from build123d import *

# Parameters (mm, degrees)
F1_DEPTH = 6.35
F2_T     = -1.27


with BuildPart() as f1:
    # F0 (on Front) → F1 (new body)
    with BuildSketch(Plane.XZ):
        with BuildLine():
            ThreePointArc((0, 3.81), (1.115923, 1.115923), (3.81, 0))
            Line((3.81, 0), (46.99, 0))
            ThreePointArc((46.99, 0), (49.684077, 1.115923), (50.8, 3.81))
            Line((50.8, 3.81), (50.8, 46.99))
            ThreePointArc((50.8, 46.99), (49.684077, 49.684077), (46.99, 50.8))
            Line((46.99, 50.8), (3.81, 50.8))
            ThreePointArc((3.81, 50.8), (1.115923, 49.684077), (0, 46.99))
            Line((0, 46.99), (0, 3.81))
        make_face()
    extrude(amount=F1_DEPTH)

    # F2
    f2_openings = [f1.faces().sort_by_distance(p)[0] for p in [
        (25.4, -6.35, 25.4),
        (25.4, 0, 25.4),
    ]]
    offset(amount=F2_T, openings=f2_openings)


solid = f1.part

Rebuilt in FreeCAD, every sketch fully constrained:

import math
import FreeCAD as App
import Part
import Sketcher
Q = App.Units.Quantity


def faces_at(feature, points):
    """Names of the faces that lie closest to the given points."""
    faces = feature.Shape.Faces
    near = lambda p: min(range(len(faces)), key=lambda i: faces[i].distToShape(Part.Vertex(*p))[0])
    return sorted({f"Face{near(p) + 1}" for p in points})

doc = App.newDocument("Part")
body = doc.addObject("PartDesign::Body", "Body")

# Sketch on XZ plane
sketch1 = body.newObject("Sketcher::SketchObject", "Sketch")
sketch1.AttachmentSupport = (doc.getObject("XZ_Plane"), [""])
sketch1.MapMode = "FlatFace"
sketch1.addGeometry(Part.ArcOfCircle(Part.Circle(App.Vector(3.8, 3.8, 0), App.Vector(0, 0, 1), 3.8), math.radians(180), math.radians(270)), False)
sketch1.addGeometry(Part.LineSegment(App.Vector(3.8, 0, 0), App.Vector(47, 0, 0)), False)
sketch1.addGeometry(Part.ArcOfCircle(Part.Circle(App.Vector(47, 3.8, 0), App.Vector(0, 0, 1), 3.8), math.radians(-90), math.radians(0)), False)
sketch1.addGeometry(Part.LineSegment(App.Vector(50.8, 3.8, 0), App.Vector(50.8, 47, 0)), False)
sketch1.addGeometry(Part.ArcOfCircle(Part.Circle(App.Vector(47, 47, 0), App.Vector(0, 0, 1), 3.8), math.radians(0), math.radians(90)), False)
sketch1.addGeometry(Part.LineSegment(App.Vector(47, 50.8, 0), App.Vector(3.8, 50.8, 0)), False)
sketch1.addGeometry(Part.ArcOfCircle(Part.Circle(App.Vector(3.8, 47, 0), App.Vector(0, 0, 1), 3.8), math.radians(90), math.radians(180)), False)
sketch1.addGeometry(Part.LineSegment(App.Vector(0, 47, 0), App.Vector(0, 3.8, 0)), False)
sketch1.addConstraint(Sketcher.Constraint("Tangent", 0, 2, 1, 1))
sketch1.addConstraint(Sketcher.Constraint("Tangent", 1, 2, 2, 1))
sketch1.addConstraint(Sketcher.Constraint("Tangent", 2, 2, 3, 1))
sketch1.addConstraint(Sketcher.Constraint("Tangent", 3, 2, 4, 1))
sketch1.addConstraint(Sketcher.Constraint("Tangent", 4, 2, 5, 1))
sketch1.addConstraint(Sketcher.Constraint("Tangent", 5, 2, 6, 1))
sketch1.addConstraint(Sketcher.Constraint("Tangent", 6, 2, 7, 1))
sketch1.addConstraint(Sketcher.Constraint("Tangent", 7, 2, 0, 1))
sketch1.addConstraint(Sketcher.Constraint("Horizontal", 1))
sketch1.addConstraint(Sketcher.Constraint("Vertical", 3))
sketch1.addConstraint(Sketcher.Constraint("Horizontal", 5))
sketch1.addConstraint(Sketcher.Constraint("Vertical", 7))
sketch1.addConstraint(Sketcher.Constraint("Equal", 0, 2))
sketch1.addConstraint(Sketcher.Constraint("Equal", 2, 4))
sketch1.addConstraint(Sketcher.Constraint("Equal", 4, 6))
sketch1.addConstraint(Sketcher.Constraint("PointOnObject", 0, 2, -1))
sketch1.addConstraint(Sketcher.Constraint("PointOnObject", 6, 2, -2))
sketch1.addConstraint(Sketcher.Constraint("Equal", 5, 3))
sketch1.addConstraint(Sketcher.Constraint("Radius", 0, Q("0.15 in")))
sketch1.addConstraint(Sketcher.Constraint("DistanceX", 1, 1, 1, 2, Q("1.7 in")))
pad1 = body.newObject("PartDesign::Pad", "Pad")
pad1.Profile = sketch1
pad1.Length = Q("0.25 in")
doc.recompute()

thickness = body.newObject("PartDesign::Thickness", "Thickness")
thickness.Base = (pad1, faces_at(pad1, [(25.4, -6.35, 25.4), (25.4, 0, 25.4)]))
thickness.Value = Q("0.05 in")
thickness.Reversed = True
thickness.Join = "Arc"

doc.recompute()
